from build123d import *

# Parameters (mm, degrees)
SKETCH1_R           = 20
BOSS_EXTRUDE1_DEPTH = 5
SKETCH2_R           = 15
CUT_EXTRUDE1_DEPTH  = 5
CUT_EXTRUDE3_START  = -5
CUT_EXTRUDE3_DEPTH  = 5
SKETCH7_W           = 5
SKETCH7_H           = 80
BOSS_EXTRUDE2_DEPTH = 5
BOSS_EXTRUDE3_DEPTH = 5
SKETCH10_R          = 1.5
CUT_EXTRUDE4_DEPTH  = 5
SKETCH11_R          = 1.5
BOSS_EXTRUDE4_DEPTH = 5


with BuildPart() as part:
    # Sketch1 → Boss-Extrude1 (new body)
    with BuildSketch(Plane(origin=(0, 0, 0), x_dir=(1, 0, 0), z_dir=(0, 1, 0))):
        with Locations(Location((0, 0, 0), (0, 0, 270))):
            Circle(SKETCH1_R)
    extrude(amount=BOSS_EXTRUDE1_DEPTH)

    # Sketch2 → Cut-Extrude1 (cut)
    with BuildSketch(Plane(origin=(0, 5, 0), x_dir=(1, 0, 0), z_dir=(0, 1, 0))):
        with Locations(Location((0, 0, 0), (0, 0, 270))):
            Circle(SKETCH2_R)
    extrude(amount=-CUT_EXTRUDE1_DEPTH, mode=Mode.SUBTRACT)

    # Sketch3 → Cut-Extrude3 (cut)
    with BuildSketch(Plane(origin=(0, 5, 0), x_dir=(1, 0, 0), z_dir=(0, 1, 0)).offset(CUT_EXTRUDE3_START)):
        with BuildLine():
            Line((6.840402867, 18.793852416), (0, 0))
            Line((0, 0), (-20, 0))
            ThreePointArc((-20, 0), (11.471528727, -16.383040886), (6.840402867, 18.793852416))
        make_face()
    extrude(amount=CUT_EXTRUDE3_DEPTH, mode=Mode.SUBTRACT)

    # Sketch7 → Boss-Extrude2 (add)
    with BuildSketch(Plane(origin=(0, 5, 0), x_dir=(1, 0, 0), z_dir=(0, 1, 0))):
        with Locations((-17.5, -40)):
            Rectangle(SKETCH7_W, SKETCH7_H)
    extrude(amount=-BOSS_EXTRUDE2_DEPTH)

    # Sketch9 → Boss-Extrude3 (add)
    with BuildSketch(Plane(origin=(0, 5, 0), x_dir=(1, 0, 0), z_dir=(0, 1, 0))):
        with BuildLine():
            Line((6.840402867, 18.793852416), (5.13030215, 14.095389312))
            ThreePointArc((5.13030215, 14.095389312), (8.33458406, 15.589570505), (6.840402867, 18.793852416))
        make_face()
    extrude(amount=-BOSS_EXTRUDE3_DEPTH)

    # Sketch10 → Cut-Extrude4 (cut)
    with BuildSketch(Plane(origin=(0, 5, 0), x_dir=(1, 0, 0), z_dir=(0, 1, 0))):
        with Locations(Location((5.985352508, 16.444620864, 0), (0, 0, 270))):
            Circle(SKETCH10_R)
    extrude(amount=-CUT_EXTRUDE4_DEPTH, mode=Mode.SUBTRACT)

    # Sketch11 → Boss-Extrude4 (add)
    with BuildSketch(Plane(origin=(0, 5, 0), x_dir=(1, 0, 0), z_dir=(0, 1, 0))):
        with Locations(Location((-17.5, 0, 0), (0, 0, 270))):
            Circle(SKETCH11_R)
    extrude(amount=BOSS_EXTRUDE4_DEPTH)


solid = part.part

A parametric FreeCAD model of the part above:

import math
import FreeCAD as App
import Part
import Sketcher
Q = App.Units.Quantity


def add_polygon(sketch, points):
    """Adds a closed chain of lines whose ends are joined by coincident constraints."""
    first, n = sketch.GeometryCount, len(points)
    for a, b in zip(points, points[1:] + points[:1]):
        sketch.addGeometry(Part.LineSegment(App.Vector(*a, 0), App.Vector(*b, 0)), False)
    for i in range(n):
        sketch.addConstraint(Sketcher.Constraint("Coincident", first + i, 2, first + (i + 1) % n, 1))

doc = App.newDocument("Part")
params = doc.addObject("Spreadsheet::Sheet", "Params")
for row, (alias, value) in enumerate([
    ("sketch1_diameter", "40 mm"),
    ("pad1_length", "5 mm"),
    ("sketch2_diameter", "30 mm"),
    ("pocket1_length", "5 mm"),
    ("sketch3_radius", "20 mm"),
    ("pocket2_length", "5 mm"),
    ("sketch4_width", "5 mm"),
    ("sketch4_height", "80 mm"),
    ("pad2_length", "5 mm"),
    ("sketch5_radius", "2.5 mm"),
    ("pad3_length", "5 mm"),
    ("sketch6_diameter", "3 mm"),
    ("pocket3_length", "5 mm"),
    ("sketch7_diameter", "3 mm"),
    ("pad4_length", "5 mm"),
], start=1):
    params.set(f"A{row}", alias)
    params.set(f"B{row}", "=" + value)
    params.setAlias(f"B{row}", alias)

body = doc.addObject("PartDesign::Body", "Body")

sketch1 = body.newObject("Sketcher::SketchObject", "Sketch")
sketch1.AttachmentSupport = (doc.getObject("XZ_Plane"), [""])
sketch1.MapMode = "FlatFace"
sketch1.addGeometry(Part.Circle(App.Vector(0, 0, 0), App.Vector(0, 0, 1), 20), False)
sketch1.addConstraint(Sketcher.Constraint("Coincident", 0, 3, -1, 1))
sketch1.addConstraint(Sketcher.Constraint("Diameter", 0, Q("40 mm")))
sketch1.setExpression("Constraints[1]", "Params.sketch1_diameter")
pad1 = body.newObject("PartDesign::Pad", "Pad")
pad1.Profile = sketch1
pad1.setExpression("Length", "Params.pad1_length")
pad1.Reversed = True

sketch2 = body.newObject("Sketcher::SketchObject", "Sketch001")
sketch2.AttachmentSupport = (doc.getObject("XZ_Plane"), [""])
sketch2.MapMode = "FlatFace"
sketch2.AttachmentOffset = App.Placement(App.Vector(0, 0, -5), App.Rotation())
sketch2.addGeometry(Part.Circle(App.Vector(0, 0, 0), App.Vector(0, 0, 1), 15), False)
sketch2.addConstraint(Sketcher.Constraint("Coincident", 0, 3, -1, 1))
sketch2.addConstraint(Sketcher.Constraint("Diameter", 0, Q("30 mm")))
sketch2.setExpression("Constraints[1]", "Params.sketch2_diameter")
pocket1 = body.newObject("PartDesign::Pocket", "Pocket")
pocket1.Profile = sketch2
pocket1.setExpression("Length", "Params.pocket1_length")
pocket1.Reversed = True

sketch3 = body.newObject("Sketcher::SketchObject", "Sketch002")
sketch3.AttachmentSupport = (doc.getObject("XZ_Plane"), [""])
sketch3.MapMode = "FlatFace"
sketch3.addGeometry(Part.LineSegment(App.Vector(6.840403, -18.793852, 0), App.Vector(0, 0, 0)), False)
sketch3.addGeometry(Part.LineSegment(App.Vector(0, 0, 0), App.Vector(-20, 0, 0)), False)
sketch3.addGeometry(Part.ArcOfCircle(Part.Circle(App.Vector(0, 0, 0), App.Vector(0, 0, 1), 20), math.radians(-70), math.radians(180)), False)
sketch3.addConstraint(Sketcher.Constraint("Coincident", 0, 2, 1, 1))
sketch3.addConstraint(Sketcher.Constraint("Coincident", 1, 2, 2, 2))
sketch3.addConstraint(Sketcher.Constraint("Coincident", 2, 1, 0, 1))
sketch3.addConstraint(Sketcher.Constraint("Horizontal", 1))
sketch3.addConstraint(Sketcher.Constraint("Coincident", 2, 3, -1, 1))
sketch3.addConstraint(Sketcher.Constraint("Coincident", 0, 2, -1, 1))
sketch3.addConstraint(Sketcher.Constraint("Radius", 2, Q("20 mm")))
sketch3.addConstraint(Sketcher.Constraint("Angle", 0, Q("110 deg")))
sketch3.setExpression("Constraints[6]", "Params.sketch3_radius")
pocket2 = body.newObject("PartDesign::Pocket", "Pocket001")
pocket2.Profile = sketch3
pocket2.setExpression("Length", "Params.pocket2_length")

sketch4 = body.newObject("Sketcher::SketchObject", "Sketch003")
sketch4.AttachmentSupport = (doc.getObject("XZ_Plane"), [""])
sketch4.MapMode = "FlatFace"
sketch4.AttachmentOffset = App.Placement(App.Vector(0, 0, -5), App.Rotation())
add_polygon(sketch4, [(-20, 0), (-20, 80), (-15, 80), (-15, 0)])
sketch4.addConstraint(Sketcher.Constraint("Vertical", 0))
sketch4.addConstraint(Sketcher.Constraint("Horizontal", 1))
sketch4.addConstraint(Sketcher.Constraint("Vertical", 2))
sketch4.addConstraint(Sketcher.Constraint("Horizontal", 3))
sketch4.addConstraint(Sketcher.Constraint("PointOnObject", 2, 2, -1))
sketch4.addConstraint(Sketcher.Constraint("DistanceX", 1, 1, 1, 2, Q("5 mm")))
sketch4.addConstraint(Sketcher.Constraint("DistanceY", 0, 1, 0, 2, Q("80 mm")))
sketch4.addConstraint(Sketcher.Constraint("DistanceX", 0, 2, -1, 1, Q("20 mm")))
sketch4.setExpression("Constraints[9]", "Params.sketch4_width")
sketch4.setExpression("Constraints[10]", "Params.sketch4_height")
pad2 = body.newObject("PartDesign::Pad", "Pad001")
pad2.Profile = sketch4
pad2.setExpression("Length", "Params.pad2_length")

sketch5 = body.newObject("Sketcher::SketchObject", "Sketch004")
sketch5.AttachmentSupport = (doc.getObject("XZ_Plane"), [""])
sketch5.MapMode = "FlatFace"
sketch5.AttachmentOffset = App.Placement(App.Vector(0, 0, -5), App.Rotation())
sketch5.addGeometry(Part.LineSegment(App.Vector(6.840403, -18.793852, 0), App.Vector(5.130302, -14.095389, 0)), False)
sketch5.addGeometry(Part.ArcOfCircle(Part.Circle(App.Vector(5.985353, -16.444621, 0), App.Vector(0, 0, 1), 2.5), math.radians(-70), math.radians(110)), False)
sketch5.addConstraint(Sketcher.Constraint("Coincident", 0, 1, 1, 1))
sketch5.addConstraint(Sketcher.Constraint("Coincident", 1, 2, 0, 2))
sketch5.addConstraint(Sketcher.Constraint("Radius", 1, Q("2.5 mm")))
sketch5.addConstraint(Sketcher.Constraint("Angle", 0, Q("110 deg")))
sketch5.addConstraint(Sketcher.Constraint("DistanceY", 1, 3, -1, 1, Q("16.444621 mm")))
sketch5.addConstraint(Sketcher.Constraint("DistanceY", 1, 2, -1, 1, Q("14.095389 mm")))
sketch5.addConstraint(Sketcher.Constraint("DistanceX", -1, 1, 1, 3, Q("5.985353 mm")))
sketch5.setExpression("Constraints[2]", "Params.sketch5_radius")
pad3 = body.newObject("PartDesign::Pad", "Pad002")
pad3.Profile = sketch5
pad3.setExpression("Length", "Params.pad3_length")

sketch6 = body.newObject("Sketcher::SketchObject", "Sketch005")
sketch6.AttachmentSupport = (doc.getObject("XZ_Plane"), [""])
sketch6.MapMode = "FlatFace"
sketch6.AttachmentOffset = App.Placement(App.Vector(0, 0, -5), App.Rotation())
sketch6.addGeometry(Part.Circle(App.Vector(5.985353, -16.444621, 0), App.Vector(0, 0, 1), 1.5), False)
sketch6.addConstraint(Sketcher.Constraint("Diameter", 0, Q("3 mm")))
sketch6.addConstraint(Sketcher.Constraint("DistanceY", 0, 3, -1, 1, Q("16.444621 mm")))
sketch6.addConstraint(Sketcher.Constraint("DistanceX", -1, 1, 0, 3, Q("5.985353 mm")))
sketch6.setExpression("Constraints[0]", "Params.sketch6_diameter")
pocket3 = body.newObject("PartDesign::Pocket", "Pocket002")
pocket3.Profile = sketch6
pocket3.setExpression("Length", "Params.pocket3_length")
pocket3.Reversed = True

sketch7 = body.newObject("Sketcher::SketchObject", "Sketch006")
sketch7.AttachmentSupport = (doc.getObject("XZ_Plane"), [""])
sketch7.MapMode = "FlatFace"
sketch7.AttachmentOffset = App.Placement(App.Vector(0, 0, -5), App.Rotation())
sketch7.addGeometry(Part.Circle(App.Vector(-17.5, 0, 0), App.Vector(0, 0, 1), 1.5), False)
sketch7.addConstraint(Sketcher.Constraint("PointOnObject", 0, 3, -1))
sketch7.addConstraint(Sketcher.Constraint("Diameter", 0, Q("3 mm")))
sketch7.addConstraint(Sketcher.Constraint("DistanceX", 0, 3, -1, 1, Q("17.5 mm")))
sketch7.setExpression("Constraints[1]", "Params.sketch7_diameter")
pad4 = body.newObject("PartDesign::Pad", "Pad003")
pad4.Profile = sketch7
pad4.setExpression("Length", "Params.pad4_length")
pad4.Reversed = True

doc.recompute()
